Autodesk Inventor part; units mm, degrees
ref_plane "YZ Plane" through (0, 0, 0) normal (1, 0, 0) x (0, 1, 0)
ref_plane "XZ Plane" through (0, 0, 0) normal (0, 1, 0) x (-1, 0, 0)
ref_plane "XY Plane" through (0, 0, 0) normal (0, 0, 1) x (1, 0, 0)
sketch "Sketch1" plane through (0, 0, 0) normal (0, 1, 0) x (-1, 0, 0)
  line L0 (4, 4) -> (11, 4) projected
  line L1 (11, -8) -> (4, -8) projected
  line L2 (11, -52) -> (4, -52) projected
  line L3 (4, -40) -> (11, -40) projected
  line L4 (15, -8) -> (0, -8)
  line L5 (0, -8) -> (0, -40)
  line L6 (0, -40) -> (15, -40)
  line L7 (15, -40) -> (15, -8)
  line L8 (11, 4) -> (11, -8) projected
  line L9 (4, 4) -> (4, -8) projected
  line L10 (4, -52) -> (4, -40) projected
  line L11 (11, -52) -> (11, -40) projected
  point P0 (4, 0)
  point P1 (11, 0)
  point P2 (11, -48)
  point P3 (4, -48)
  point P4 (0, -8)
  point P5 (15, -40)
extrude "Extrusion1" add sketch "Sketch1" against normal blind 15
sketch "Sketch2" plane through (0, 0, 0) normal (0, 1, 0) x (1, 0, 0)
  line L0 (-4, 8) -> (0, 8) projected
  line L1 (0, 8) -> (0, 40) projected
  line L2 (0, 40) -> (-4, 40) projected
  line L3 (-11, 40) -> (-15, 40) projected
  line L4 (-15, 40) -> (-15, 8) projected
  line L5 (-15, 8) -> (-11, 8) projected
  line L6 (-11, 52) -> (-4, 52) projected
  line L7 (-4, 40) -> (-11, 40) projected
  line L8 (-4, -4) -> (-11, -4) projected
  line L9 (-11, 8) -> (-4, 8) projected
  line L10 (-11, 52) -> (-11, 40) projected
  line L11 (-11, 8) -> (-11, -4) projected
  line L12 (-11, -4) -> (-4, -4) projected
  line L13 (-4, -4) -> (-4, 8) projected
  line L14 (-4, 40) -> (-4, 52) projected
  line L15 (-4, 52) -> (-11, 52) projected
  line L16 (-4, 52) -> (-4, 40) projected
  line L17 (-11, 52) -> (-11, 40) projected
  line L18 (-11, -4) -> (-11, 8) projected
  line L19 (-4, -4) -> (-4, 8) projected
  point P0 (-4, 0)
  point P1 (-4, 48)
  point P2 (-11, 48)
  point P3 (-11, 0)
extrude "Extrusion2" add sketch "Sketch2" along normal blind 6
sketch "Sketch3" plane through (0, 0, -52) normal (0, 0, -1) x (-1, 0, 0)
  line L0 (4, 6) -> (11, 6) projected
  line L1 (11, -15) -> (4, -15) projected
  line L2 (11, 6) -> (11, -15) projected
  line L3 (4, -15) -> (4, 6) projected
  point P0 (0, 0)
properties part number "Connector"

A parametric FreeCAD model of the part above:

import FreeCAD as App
import Part
import Sketcher
from FreeCAD import Vector

doc = App.newDocument("Part")
body = doc.addObject("PartDesign::Body", "Body")

sketch1 = doc.addObject("Sketcher::SketchObject", "Sketch")
body.addObject(sketch1)
sketch1.AttachmentSupport = (doc.XZ_Plane, [""])
sketch1.MapMode = "FlatFace"
sketch1.addGeometry(Part.LineSegment(Vector(-11, 4, 0), Vector(-4, 4, 0)), False)
sketch1.addGeometry(Part.LineSegment(Vector(-4, 4, 0), Vector(-4, -8, 0)), False)
sketch1.addGeometry(Part.LineSegment(Vector(-4, -8, 0), Vector(0, -8, 0)), False)
sketch1.addGeometry(Part.LineSegment(Vector(0, -8, 0), Vector(0, -40, 0)), False)
sketch1.addGeometry(Part.LineSegment(Vector(0, -40, 0), Vector(-4, -40, 0)), False)
sketch1.addGeometry(Part.LineSegment(Vector(-4, -40, 0), Vector(-4, -52, 0)), False)
sketch1.addGeometry(Part.LineSegment(Vector(-4, -52, 0), Vector(-11, -52, 0)), False)
sketch1.addGeometry(Part.LineSegment(Vector(-11, -52, 0), Vector(-11, -40, 0)), False)
sketch1.addGeometry(Part.LineSegment(Vector(-11, -40, 0), Vector(-15, -40, 0)), False)
sketch1.addGeometry(Part.LineSegment(Vector(-15, -40, 0), Vector(-15, -8, 0)), False)
sketch1.addGeometry(Part.LineSegment(Vector(-15, -8, 0), Vector(-11, -8, 0)), False)
sketch1.addGeometry(Part.LineSegment(Vector(-11, -8, 0), Vector(-11, 4, 0)), False)
sketch1.addConstraint(Sketcher.Constraint("Coincident", 0, 2, 1, 1))
sketch1.addConstraint(Sketcher.Constraint("Coincident", 1, 2, 2, 1))
sketch1.addConstraint(Sketcher.Constraint("Coincident", 2, 2, 3, 1))
sketch1.addConstraint(Sketcher.Constraint("Coincident", 3, 2, 4, 1))
sketch1.addConstraint(Sketcher.Constraint("Coincident", 4, 2, 5, 1))
sketch1.addConstraint(Sketcher.Constraint("Coincident", 5, 2, 6, 1))
sketch1.addConstraint(Sketcher.Constraint("Coincident", 6, 2, 7, 1))
sketch1.addConstraint(Sketcher.Constraint("Coincident", 7, 2, 8, 1))
sketch1.addConstraint(Sketcher.Constraint("Coincident", 8, 2, 9, 1))
sketch1.addConstraint(Sketcher.Constraint("Coincident", 9, 2, 10, 1))
sketch1.addConstraint(Sketcher.Constraint("Coincident", 10, 2, 11, 1))
sketch1.addConstraint(Sketcher.Constraint("Coincident", 11, 2, 0, 1))
sketch1.addConstraint(Sketcher.Constraint("Horizontal", 0))
sketch1.addConstraint(Sketcher.Constraint("Vertical", 1))
sketch1.addConstraint(Sketcher.Constraint("Horizontal", 2))
sketch1.addConstraint(Sketcher.Constraint("Vertical", 3))
sketch1.addConstraint(Sketcher.Constraint("Horizontal", 4))
sketch1.addConstraint(Sketcher.Constraint("Vertical", 5))
sketch1.addConstraint(Sketcher.Constraint("Horizontal", 6))
sketch1.addConstraint(Sketcher.Constraint("Vertical", 7))
sketch1.addConstraint(Sketcher.Constraint("Horizontal", 8))
sketch1.addConstraint(Sketcher.Constraint("Vertical", 9))
sketch1.addConstraint(Sketcher.Constraint("Horizontal", 10))
sketch1.addConstraint(Sketcher.Constraint("Vertical", 11))
sketch1.addConstraint(Sketcher.Constraint("PointOnObject", 2, 2, -2))
sketch1.addConstraint(Sketcher.Constraint("Horizontal", 4, 2, 7, 2))
sketch1.addConstraint(Sketcher.Constraint("Horizontal", 2, 2, 9, 2))
sketch1.addConstraint(Sketcher.Constraint("Vertical", 1, 2, 4, 2))
sketch1.addConstraint(Sketcher.Constraint("Vertical", 7, 2, 10, 2))
sketch1.addConstraint(Sketcher.Constraint("Equal", 4, 8))
sketch1.addConstraint(Sketcher.Constraint("Equal", 1, 5))
sketch1.addConstraint(Sketcher.Constraint("DistanceX", 0, 1, 0, 2, 7.0))
sketch1.addConstraint(Sketcher.Constraint("DistanceX", 2, 1, 2, 2, 4.0))
sketch1.addConstraint(Sketcher.Constraint("DistanceY", 1, 2, 1, 1, 12.0))
sketch1.addConstraint(Sketcher.Constraint("DistanceY", 3, 2, 3, 1, 32.0))
sketch1.addConstraint(Sketcher.Constraint("DistanceY", -1, 1, 0, 2, 4.0))
pad1 = doc.addObject("PartDesign::Pad", "Pad")
body.addObject(pad1)
pad1.Profile = sketch1
pad1.Length = 15

sketch2 = doc.addObject("Sketcher::SketchObject", "Sketch001")
body.addObject(sketch2)
sketch2.AttachmentSupport = (doc.XZ_Plane, [""])
sketch2.MapMode = "FlatFace"
sketch2.addGeometry(Part.LineSegment(Vector(-15, -8, 0), Vector(-11, -8, 0)), False)
sketch2.addGeometry(Part.LineSegment(Vector(-11, -8, 0), Vector(-11, 4, 0)), False)
sketch2.addGeometry(Part.LineSegment(Vector(-11, 4, 0), Vector(-4, 4, 0)), False)
sketch2.addGeometry(Part.LineSegment(Vector(-4, 4, 0), Vector(-4, -8, 0)), False)
sketch2.addGeometry(Part.LineSegment(Vector(-4, -8, 0), Vector(0, -8, 0)), False)
sketch2.addGeometry(Part.LineSegment(Vector(0, -8, 0), Vector(0, -40, 0)), False)
sketch2.addGeometry(Part.LineSegment(Vector(0, -40, 0), Vector(-4, -40, 0)), False)
sketch2.addGeometry(Part.LineSegment(Vector(-4, -40, 0), Vector(-4, -52, 0)), False)
sketch2.addGeometry(Part.LineSegment(Vector(-4, -52, 0), Vector(-11, -52, 0)), False)
sketch2.addGeometry(Part.LineSegment(Vector(-11, -52, 0), Vector(-11, -40, 0)), False)
sketch2.addGeometry(Part.LineSegment(Vector(-11, -40, 0), Vector(-15, -40, 0)), False)
sketch2.addGeometry(Part.LineSegment(Vector(-15, -40, 0), Vector(-15, -8, 0)), False)
sketch2.addConstraint(Sketcher.Constraint("Coincident", 0, 2, 1, 1))
sketch2.addConstraint(Sketcher.Constraint("Coincident", 1, 2, 2, 1))
sketch2.addConstraint(Sketcher.Constraint("Coincident", 2, 2, 3, 1))
sketch2.addConstraint(Sketcher.Constraint("Coincident", 3, 2, 4, 1))
sketch2.addConstraint(Sketcher.Constraint("Coincident", 4, 2, 5, 1))
sketch2.addConstraint(Sketcher.Constraint("Coincident", 5, 2, 6, 1))
sketch2.addConstraint(Sketcher.Constraint("Coincident", 6, 2, 7, 1))
sketch2.addConstraint(Sketcher.Constraint("Coincident", 7, 2, 8, 1))
sketch2.addConstraint(Sketcher.Constraint("Coincident", 8, 2, 9, 1))
sketch2.addConstraint(Sketcher.Constraint("Coincident", 9, 2, 10, 1))
sketch2.addConstraint(Sketcher.Constraint("Coincident", 10, 2, 11, 1))
sketch2.addConstraint(Sketcher.Constraint("Coincident", 11, 2, 0, 1))
sketch2.addConstraint(Sketcher.Constraint("Horizontal", 0))
sketch2.addConstraint(Sketcher.Constraint("Vertical", 1))
sketch2.addConstraint(Sketcher.Constraint("Horizontal", 2))
sketch2.addConstraint(Sketcher.Constraint("Vertical", 3))
sketch2.addConstraint(Sketcher.Constraint("Horizontal", 4))
sketch2.addConstraint(Sketcher.Constraint("Vertical", 5))
sketch2.addConstraint(Sketcher.Constraint("Horizontal", 6))
sketch2.addConstraint(Sketcher.Constraint("Vertical", 7))
sketch2.addConstraint(Sketcher.Constraint("Horizontal", 8))
sketch2.addConstraint(Sketcher.Constraint("Vertical", 9))
sketch2.addConstraint(Sketcher.Constraint("Horizontal", 10))
sketch2.addConstraint(Sketcher.Constraint("Vertical", 11))
sketch2.addConstraint(Sketcher.Constraint("PointOnObject", 4, 2, -2))
sketch2.addConstraint(Sketcher.Constraint("Horizontal", 0, 2, 3, 2))
sketch2.addConstraint(Sketcher.Constraint("Horizontal", 6, 2, 9, 2))
sketch2.addConstraint(Sketcher.Constraint("Vertical", 3, 2, 6, 2))
sketch2.addConstraint(Sketcher.Constraint("Vertical", 1, 2, 8, 2))
sketch2.addConstraint(Sketcher.Constraint("Equal", 0, 4))
sketch2.addConstraint(Sketcher.Constraint("Equal", 3, 7))
sketch2.addConstraint(Sketcher.Constraint("DistanceX", 0, 1, 0, 2, 4.0))
sketch2.addConstraint(Sketcher.Constraint("DistanceX", 2, 1, 2, 2, 7.0))
sketch2.addConstraint(Sketcher.Constraint("DistanceY", 1, 1, 1, 2, 12.0))
sketch2.addConstraint(Sketcher.Constraint("DistanceY", 5, 2, 5, 1, 32.0))
sketch2.addConstraint(Sketcher.Constraint("DistanceY", 0, 2, -1, 1, 8.0))
pad2 = doc.addObject("PartDesign::Pad", "Pad001")
body.addObject(pad2)
pad2.Profile = sketch2
pad2.Length = 6
pad2.Reversed = True

doc.recompute()
